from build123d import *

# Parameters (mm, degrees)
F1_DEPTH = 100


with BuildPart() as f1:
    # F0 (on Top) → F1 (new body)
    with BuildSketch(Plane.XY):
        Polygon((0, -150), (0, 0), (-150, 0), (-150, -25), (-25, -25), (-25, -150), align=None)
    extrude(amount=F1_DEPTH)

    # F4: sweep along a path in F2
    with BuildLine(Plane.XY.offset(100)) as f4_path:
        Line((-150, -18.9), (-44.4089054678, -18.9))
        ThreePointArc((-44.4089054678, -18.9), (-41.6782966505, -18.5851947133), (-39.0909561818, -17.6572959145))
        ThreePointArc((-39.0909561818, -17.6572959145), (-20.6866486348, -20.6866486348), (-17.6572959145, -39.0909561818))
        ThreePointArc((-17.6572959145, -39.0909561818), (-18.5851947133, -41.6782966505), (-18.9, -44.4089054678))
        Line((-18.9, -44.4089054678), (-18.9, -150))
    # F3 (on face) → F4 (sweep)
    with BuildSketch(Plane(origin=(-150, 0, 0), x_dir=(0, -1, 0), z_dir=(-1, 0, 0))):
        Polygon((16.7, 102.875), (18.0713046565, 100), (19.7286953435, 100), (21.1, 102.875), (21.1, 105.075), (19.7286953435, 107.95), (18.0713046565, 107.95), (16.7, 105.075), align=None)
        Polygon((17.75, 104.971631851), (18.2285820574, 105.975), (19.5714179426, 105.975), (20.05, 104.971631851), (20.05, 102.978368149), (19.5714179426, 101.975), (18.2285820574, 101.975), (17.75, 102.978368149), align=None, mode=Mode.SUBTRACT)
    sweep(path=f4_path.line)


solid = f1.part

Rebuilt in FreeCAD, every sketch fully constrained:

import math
import FreeCAD as App
import Part
import Sketcher
Q = App.Units.Quantity

doc = App.newDocument("Part")
body = doc.addObject("PartDesign::Body", "Body")

sketch1 = doc.addObject("Sketcher::SketchObject", "Sketch")
body.addObject(sketch1)
sketch1.AttachmentSupport = (doc.XY_Plane, [""])
sketch1.MapMode = "FlatFace"
sketch1.addGeometry([
    Part.LineSegment(App.Vector(0, -150, 0), App.Vector(0, 0, 0)),
    Part.LineSegment(App.Vector(0, 0, 0), App.Vector(-150, 0, 0)),
    Part.LineSegment(App.Vector(-150, 0, 0), App.Vector(-150, -25, 0)),
    Part.LineSegment(App.Vector(-150, -25, 0), App.Vector(-25, -25, 0)),
    Part.LineSegment(App.Vector(-25, -25, 0), App.Vector(-25, -150, 0)),
    Part.LineSegment(App.Vector(-25, -150, 0), App.Vector(0, -150, 0)),
], False)
sketch1.addConstraint([
    Sketcher.Constraint("Coincident", 0, 2, 1, 1),
    Sketcher.Constraint("Coincident", 1, 2, 2, 1),
    Sketcher.Constraint("Coincident", 2, 2, 3, 1),
    Sketcher.Constraint("Coincident", 3, 2, 4, 1),
    Sketcher.Constraint("Coincident", 4, 2, 5, 1),
    Sketcher.Constraint("Coincident", 5, 2, 0, 1),
    Sketcher.Constraint("Vertical", 0),
    Sketcher.Constraint("Horizontal", 1),
    Sketcher.Constraint("Vertical", 2),
    Sketcher.Constraint("Horizontal", 3),
    Sketcher.Constraint("Vertical", 4),
    Sketcher.Constraint("Horizontal", 5),
    Sketcher.Constraint("Coincident", 0, 2, -1, 1),
    Sketcher.Constraint("Equal", 1, 0),
    Sketcher.Constraint("Equal", 5, 2),
    Sketcher.Constraint("DistanceX", 1, 2, 1, 1, 150.0),
    Sketcher.Constraint("DistanceX", 3, 1, 3, 2, 125.0),
])
pad1 = doc.addObject("PartDesign::Pad", "Pad")
body.addObject(pad1)
pad1.Profile = sketch1
pad1.Length = 100

sketch2 = doc.addObject("Sketcher::SketchObject", "Sketch001")
body.addObject(sketch2)
sketch2.AttachmentSupport = (doc.YZ_Plane, [""])
sketch2.MapMode = "FlatFace"
sketch2.AttachmentOffset = App.Placement(App.Vector(0, 0, -150), App.Rotation())
sketch2.addGeometry([
    Part.LineSegment(App.Vector(-16.7, 102.9, 0), App.Vector(-18.1, 100, 0)),
    Part.LineSegment(App.Vector(-18.1, 100, 0), App.Vector(-19.7, 100, 0)),
    Part.LineSegment(App.Vector(-19.7, 100, 0), App.Vector(-21.1, 102.9, 0)),
    Part.LineSegment(App.Vector(-21.1, 102.9, 0), App.Vector(-21.1, 105.1, 0)),
    Part.LineSegment(App.Vector(-21.1, 105.1, 0), App.Vector(-19.7, 108, 0)),
    Part.LineSegment(App.Vector(-19.7, 108, 0), App.Vector(-18.1, 108, 0)),
    Part.LineSegment(App.Vector(-18.1, 108, 0), App.Vector(-16.7, 105.1, 0)),
    Part.LineSegment(App.Vector(-16.7, 105.1, 0), App.Vector(-16.7, 102.9, 0)),
    Part.LineSegment(App.Vector(-17.8, 103, 0), App.Vector(-17.8, 105, 0)),
    Part.LineSegment(App.Vector(-17.8, 105, 0), App.Vector(-18.2, 106, 0)),
    Part.LineSegment(App.Vector(-18.2, 106, 0), App.Vector(-19.6, 106, 0)),
    Part.LineSegment(App.Vector(-19.6, 106, 0), App.Vector(-20.1, 105, 0)),
    Part.LineSegment(App.Vector(-20.1, 105, 0), App.Vector(-20.1, 103, 0)),
    Part.LineSegment(App.Vector(-20.1, 103, 0), App.Vector(-19.6, 102, 0)),
    Part.LineSegment(App.Vector(-19.6, 102, 0), App.Vector(-18.2, 102, 0)),
    Part.LineSegment(App.Vector(-18.2, 102, 0), App.Vector(-17.8, 103, 0)),
], False)
sketch2.addConstraint([
    Sketcher.Constraint("Coincident", 0, 2, 1, 1),
    Sketcher.Constraint("Coincident", 1, 2, 2, 1),
    Sketcher.Constraint("Coincident", 2, 2, 3, 1),
    Sketcher.Constraint("Coincident", 3, 2, 4, 1),
    Sketcher.Constraint("Coincident", 4, 2, 5, 1),
    Sketcher.Constraint("Coincident", 5, 2, 6, 1),
    Sketcher.Constraint("Coincident", 6, 2, 7, 1),
    Sketcher.Constraint("Coincident", 7, 2, 0, 1),
    Sketcher.Constraint("Coincident", 8, 2, 9, 1),
    Sketcher.Constraint("Coincident", 9, 2, 10, 1),
    Sketcher.Constraint("Coincident", 10, 2, 11, 1),
    Sketcher.Constraint("Coincident", 11, 2, 12, 1),
    Sketcher.Constraint("Coincident", 12, 2, 13, 1),
    Sketcher.Constraint("Coincident", 13, 2, 14, 1),
    Sketcher.Constraint("Coincident", 14, 2, 15, 1),
    Sketcher.Constraint("Coincident", 15, 2, 8, 1),
    Sketcher.Constraint("Horizontal", 1),
    Sketcher.Constraint("Vertical", 3),
    Sketcher.Constraint("Horizontal", 5),
    Sketcher.Constraint("Vertical", 7),
    Sketcher.Constraint("Vertical", 8),
    Sketcher.Constraint("Horizontal", 10),
    Sketcher.Constraint("Vertical", 12),
    Sketcher.Constraint("Horizontal", 14),
    Sketcher.Constraint("Parallel", 0, 4),
    Sketcher.Constraint("Parallel", 2, 6),
    Sketcher.Constraint("Parallel", 6, 9),
    Sketcher.Constraint("Parallel", 4, 11),
    Sketcher.Constraint("Parallel", 9, 13),
    Sketcher.Constraint("Parallel", 11, 15),
    Sketcher.Constraint("Horizontal", 3, 2, 6, 2),
    Sketcher.Constraint("Horizontal", 2, 2, 7, 2),
    Sketcher.Constraint("Horizontal", 8, 2, 11, 2),
    Sketcher.Constraint("Horizontal", 12, 2, 15, 2),
    Sketcher.Constraint("Vertical", 1, 2, 4, 2),
    Sketcher.Constraint("Vertical", 0, 2, 5, 2),
    Sketcher.Constraint("Vertical", 10, 2, 13, 2),
    Sketcher.Constraint("DistanceY", 3, 1, 3, 2, 2.2),
    Sketcher.Constraint("DistanceY", -1, 1, 0, 2, 100.0),
    Sketcher.Constraint("Angle", 0, Q("-115.5 deg")),
    Sketcher.Constraint("DistanceX", 2, 2, -1, 1, 21.1),
    Sketcher.Constraint("DistanceX", 6, 2, -1, 1, 16.7),
    Sketcher.Constraint("DistanceY", 6, 2, 9, 2, 0.9),
    Sketcher.Constraint("DistanceX", 11, 2, 8, 2, 2.3),
    Sketcher.Constraint("DistanceY", 13, 2, 2, 2, 0.9),
    Sketcher.Constraint("DistanceY", -1, 1, 4, 2, 107.95),
    Sketcher.Constraint("DistanceX", 8, 2, -1, 1, 17.75),
    Sketcher.Constraint("Distance", 9, 1.11166),
])

sketch3 = doc.addObject("Sketcher::SketchObject", "Sketch002")
body.addObject(sketch3)
sketch3.AttachmentSupport = (doc.XY_Plane, [""])
sketch3.MapMode = "FlatFace"
sketch3.AttachmentOffset = App.Placement(App.Vector(0, 0, 100), App.Rotation())
sketch3.addGeometry([
    Part.LineSegment(App.Vector(-150, -19, 0), App.Vector(-44, -19, 0)),
    Part.ArcOfCircle(Part.Circle(App.Vector(-44, -7, 0), App.Vector(0, 0, 1), 12), math.radians(-90), math.radians(-64)),
    Part.ArcOfCircle(Part.Circle(App.Vector(-32, -32, 0), App.Vector(0, 0, 1), 16), math.radians(-26), math.radians(116)),
    Part.ArcOfCircle(Part.Circle(App.Vector(-7, -44, 0), App.Vector(0, 0, 1), 12), math.radians(154), math.radians(180)),
    Part.LineSegment(App.Vector(-19, -44, 0), App.Vector(-19, -150, 0)),
], False)
sketch3.addConstraint([
    Sketcher.Constraint("Tangent", 0, 2, 1, 1),
    Sketcher.Constraint("Tangent", 1, 2, 2, 2),
    Sketcher.Constraint("Tangent", 2, 1, 3, 1),
    Sketcher.Constraint("Tangent", 3, 2, 4, 1),
    Sketcher.Constraint("Horizontal", 0),
    Sketcher.Constraint("Vertical", 4),
    Sketcher.Constraint("Equal", 1, 3),
    Sketcher.Constraint("Equal", 0, 4),
    Sketcher.Constraint("Radius", 1, 12.0),
    Sketcher.Constraint("Radius", 2, 16.0),
    Sketcher.Constraint("DistanceX", 0, 1, -1, 1, 150.0),
    Sketcher.Constraint("DistanceY", 4, 2, -1, 1, 150.0),
    Sketcher.Constraint("DistanceY", 1, 3, -1, 1, 6.9),
    Sketcher.Constraint("DistanceX", 3, 3, -1, 1, 6.9),
    Sketcher.Constraint("DistanceX", 1, 2, 2, 3, 7.090599),
])
doc.recompute()

additivepipe = doc.addObject("PartDesign::AdditivePipe", "AdditivePipe")
body.addObject(additivepipe)
additivepipe.Profile = sketch2
additivepipe.Spine = (sketch3, ["Edge1", "Edge2", "Edge3", "Edge4", "Edge5"])

doc.recompute()
